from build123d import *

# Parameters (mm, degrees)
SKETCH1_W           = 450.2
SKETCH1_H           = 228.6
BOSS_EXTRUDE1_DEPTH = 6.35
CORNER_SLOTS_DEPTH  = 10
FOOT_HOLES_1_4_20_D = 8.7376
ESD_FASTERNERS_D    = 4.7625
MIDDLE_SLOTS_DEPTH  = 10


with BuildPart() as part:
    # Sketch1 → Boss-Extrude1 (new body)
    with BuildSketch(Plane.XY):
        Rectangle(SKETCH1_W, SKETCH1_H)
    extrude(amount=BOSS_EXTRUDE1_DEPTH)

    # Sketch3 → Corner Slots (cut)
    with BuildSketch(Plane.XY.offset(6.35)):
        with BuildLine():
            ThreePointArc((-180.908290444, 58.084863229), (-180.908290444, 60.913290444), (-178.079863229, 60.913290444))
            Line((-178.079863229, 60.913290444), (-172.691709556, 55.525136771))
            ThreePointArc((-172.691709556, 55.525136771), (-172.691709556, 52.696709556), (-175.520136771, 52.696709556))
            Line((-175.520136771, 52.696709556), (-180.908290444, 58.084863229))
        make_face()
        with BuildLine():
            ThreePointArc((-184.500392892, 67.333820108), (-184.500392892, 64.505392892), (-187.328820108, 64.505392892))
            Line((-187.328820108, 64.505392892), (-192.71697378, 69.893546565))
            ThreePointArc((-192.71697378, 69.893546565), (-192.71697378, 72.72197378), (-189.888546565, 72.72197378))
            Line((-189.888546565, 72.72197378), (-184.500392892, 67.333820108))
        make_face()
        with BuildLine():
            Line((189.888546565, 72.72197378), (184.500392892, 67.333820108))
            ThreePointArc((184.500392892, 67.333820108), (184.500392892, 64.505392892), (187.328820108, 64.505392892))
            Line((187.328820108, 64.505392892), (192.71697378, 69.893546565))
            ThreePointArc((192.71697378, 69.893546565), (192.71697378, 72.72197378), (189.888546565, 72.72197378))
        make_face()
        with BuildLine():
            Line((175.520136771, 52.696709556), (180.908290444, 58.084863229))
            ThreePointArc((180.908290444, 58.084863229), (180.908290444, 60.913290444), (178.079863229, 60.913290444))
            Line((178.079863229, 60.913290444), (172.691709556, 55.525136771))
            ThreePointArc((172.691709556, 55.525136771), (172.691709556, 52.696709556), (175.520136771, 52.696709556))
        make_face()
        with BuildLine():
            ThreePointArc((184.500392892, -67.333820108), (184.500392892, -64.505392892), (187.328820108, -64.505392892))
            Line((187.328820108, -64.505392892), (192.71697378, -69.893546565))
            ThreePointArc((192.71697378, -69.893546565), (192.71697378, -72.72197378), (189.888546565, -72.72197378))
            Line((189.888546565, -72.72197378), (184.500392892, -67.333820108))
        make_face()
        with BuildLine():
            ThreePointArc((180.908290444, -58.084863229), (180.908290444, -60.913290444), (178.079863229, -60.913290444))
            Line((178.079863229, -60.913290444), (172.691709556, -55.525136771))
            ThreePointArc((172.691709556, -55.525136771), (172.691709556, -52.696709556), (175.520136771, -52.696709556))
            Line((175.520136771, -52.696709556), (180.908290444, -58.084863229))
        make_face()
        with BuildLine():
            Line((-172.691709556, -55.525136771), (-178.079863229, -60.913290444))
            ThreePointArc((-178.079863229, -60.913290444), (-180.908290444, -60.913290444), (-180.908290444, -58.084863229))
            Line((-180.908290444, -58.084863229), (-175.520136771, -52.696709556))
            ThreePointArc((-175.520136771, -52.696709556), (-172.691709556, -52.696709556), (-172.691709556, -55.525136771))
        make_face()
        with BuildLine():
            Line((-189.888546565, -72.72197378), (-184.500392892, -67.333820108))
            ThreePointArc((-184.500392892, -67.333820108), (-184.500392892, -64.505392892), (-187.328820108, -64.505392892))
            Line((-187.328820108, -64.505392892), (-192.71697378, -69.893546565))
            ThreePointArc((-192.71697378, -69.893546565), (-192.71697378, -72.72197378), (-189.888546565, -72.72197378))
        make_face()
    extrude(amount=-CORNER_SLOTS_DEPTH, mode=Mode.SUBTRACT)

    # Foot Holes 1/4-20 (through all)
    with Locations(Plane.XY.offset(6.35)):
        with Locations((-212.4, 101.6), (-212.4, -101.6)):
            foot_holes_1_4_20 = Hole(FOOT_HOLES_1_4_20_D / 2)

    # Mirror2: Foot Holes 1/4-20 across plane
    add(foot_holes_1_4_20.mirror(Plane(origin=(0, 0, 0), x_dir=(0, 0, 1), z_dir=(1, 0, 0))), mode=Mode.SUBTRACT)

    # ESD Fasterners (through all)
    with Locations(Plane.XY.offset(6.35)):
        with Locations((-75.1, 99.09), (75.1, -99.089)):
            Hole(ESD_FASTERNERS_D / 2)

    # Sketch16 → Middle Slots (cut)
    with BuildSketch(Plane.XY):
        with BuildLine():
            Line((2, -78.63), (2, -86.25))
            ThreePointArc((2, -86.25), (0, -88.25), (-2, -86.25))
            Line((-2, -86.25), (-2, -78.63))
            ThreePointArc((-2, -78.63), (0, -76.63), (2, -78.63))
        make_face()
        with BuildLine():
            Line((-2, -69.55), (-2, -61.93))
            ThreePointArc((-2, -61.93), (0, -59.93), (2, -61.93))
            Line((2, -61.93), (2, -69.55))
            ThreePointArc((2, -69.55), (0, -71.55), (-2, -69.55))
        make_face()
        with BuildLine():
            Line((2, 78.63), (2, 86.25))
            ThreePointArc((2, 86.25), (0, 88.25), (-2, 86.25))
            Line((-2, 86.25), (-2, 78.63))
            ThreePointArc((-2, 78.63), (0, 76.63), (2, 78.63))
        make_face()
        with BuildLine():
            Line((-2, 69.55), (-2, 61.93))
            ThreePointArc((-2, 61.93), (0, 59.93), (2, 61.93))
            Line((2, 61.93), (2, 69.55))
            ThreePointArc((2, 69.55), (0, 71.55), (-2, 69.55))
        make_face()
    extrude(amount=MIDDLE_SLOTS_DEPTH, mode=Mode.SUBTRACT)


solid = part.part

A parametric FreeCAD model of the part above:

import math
import FreeCAD as App
import Part
import Sketcher
Q = App.Units.Quantity

doc = App.newDocument("Part")
params = doc.addObject("Spreadsheet::Sheet", "Params")
for row, (alias, value) in enumerate([
    ("sketch1_height", "9 in"),
    ("pad1_length", "0.25 in"),
    ("sketch2_length", "0.3 in"),
    ("pocket1_length", "10 mm"),
    ("sketch3_diameter", "0.344 in"),
    ("hole_diameter", "0.344 in"),
    ("sketch4_diameter", "0.1875 in"),
    ("hole2_diameter", "0.1875 in"),
    ("sketch5_height", "0.3 in"),
    ("pocket2_length", "10 mm"),
], start=1):
    params.set(f"A{row}", alias)
    params.set(f"B{row}", "=" + value)
    params.setAlias(f"B{row}", alias)

body = doc.addObject("PartDesign::Body", "Body")

# Sketch on XY plane
sketch1 = body.newObject("Sketcher::SketchObject", "Sketch")
sketch1.AttachmentSupport = (doc.getObject("XY_Plane"), [""])
sketch1.MapMode = "FlatFace"
sketch1.addGeometry(Part.LineSegment(App.Vector(-225, 114, 0), App.Vector(-225, -114, 0)), False)
sketch1.addGeometry(Part.LineSegment(App.Vector(-225, -114, 0), App.Vector(225, -114, 0)), False)
sketch1.addGeometry(Part.LineSegment(App.Vector(225, -114, 0), App.Vector(225, 114, 0)), False)
sketch1.addGeometry(Part.LineSegment(App.Vector(225, 114, 0), App.Vector(-225, 114, 0)), False)
sketch1.addConstraint(Sketcher.Constraint("Coincident", 0, 2, 1, 1))
sketch1.addConstraint(Sketcher.Constraint("Coincident", 1, 2, 2, 1))
sketch1.addConstraint(Sketcher.Constraint("Coincident", 2, 2, 3, 1))
sketch1.addConstraint(Sketcher.Constraint("Coincident", 3, 2, 0, 1))
sketch1.addConstraint(Sketcher.Constraint("Vertical", 0))
sketch1.addConstraint(Sketcher.Constraint("Horizontal", 1))
sketch1.addConstraint(Sketcher.Constraint("Vertical", 2))
sketch1.addConstraint(Sketcher.Constraint("Horizontal", 3))
sketch1.addConstraint(Sketcher.Constraint("Symmetric", 0, 2, 2, 2, -1, 1))
sketch1.addConstraint(Sketcher.Constraint("DistanceY", 0, 2, 0, 1, Q("9 in")))
sketch1.addConstraint(Sketcher.Constraint("DistanceX", 1, 1, 1, 2, 450.2))
sketch1.setExpression("Constraints[9]", "Params.sketch1_height")
pad1 = body.newObject("PartDesign::Pad", "Pad")
pad1.Profile = sketch1
pad1.setExpression("Length", "Params.pad1_length")

# Sketch on XY plane
sketch2 = body.newObject("Sketcher::SketchObject", "Sketch001")
sketch2.AttachmentSupport = (doc.getObject("XY_Plane"), [""])
sketch2.MapMode = "FlatFace"
sketch2.AttachmentOffset = App.Placement(App.Vector(0, 0, 0.25 * 25.4), App.Rotation())
sketch2.addGeometry(Part.ArcOfCircle(Part.Circle(App.Vector(-179.5, 59.5, 0), App.Vector(0, 0, 1), 2), math.radians(45), math.radians(225)), False)
sketch2.addGeometry(Part.LineSegment(App.Vector(-180.9, 58.1, 0), App.Vector(-175.5, 52.7, 0)), False)
sketch2.addGeometry(Part.ArcOfCircle(Part.Circle(App.Vector(-174.1, 54.1, 0), App.Vector(0, 0, 1), 2), math.radians(-135), math.radians(45)), False)
sketch2.addGeometry(Part.LineSegment(App.Vector(-172.7, 55.5, 0), App.Vector(-178.1, 60.9, 0)), False)
sketch2.addGeometry(Part.ArcOfCircle(Part.Circle(App.Vector(-185.9, 65.9, 0), App.Vector(0, 0, 1), 2), math.radians(-135), math.radians(45)), False)
sketch2.addGeometry(Part.LineSegment(App.Vector(-184.5, 67.3, 0), App.Vector(-189.9, 72.7, 0)), False)
sketch2.addGeometry(Part.ArcOfCircle(Part.Circle(App.Vector(-191.3, 71.3, 0), App.Vector(0, 0, 1), 2), math.radians(45), math.radians(225)), False)
sketch2.addGeometry(Part.LineSegment(App.Vector(-192.7, 69.9, 0), App.Vector(-187.3, 64.5, 0)), False)
sketch2.addGeometry(Part.LineSegment(App.Vector(189.9, 72.7, 0), App.Vector(184.5, 67.3, 0)), False)
sketch2.addGeometry(Part.ArcOfCircle(Part.Circle(App.Vector(185.9, 65.9, 0), App.Vector(0, 0, 1), 2), math.radians(135), math.radians(315)), False)
sketch2.addGeometry(Part.LineSegment(App.Vector(187.3, 64.5, 0), App.Vector(192.7, 69.9, 0)), False)
sketch2.addGeometry(Part.ArcOfCircle(Part.Circle(App.Vector(191.3, 71.3, 0), App.Vector(0, 0, 1), 2), math.radians(-45), math.radians(135)), False)
sketch2.addGeometry(Part.LineSegment(App.Vector(175.5, 52.7, 0), App.Vector(180.9, 58.1, 0)), False)
sketch2.addGeometry(Part.ArcOfCircle(Part.Circle(App.Vector(179.5, 59.5, 0), App.Vector(0, 0, 1), 2), math.radians(-45), math.radians(135)), False)
sketch2.addGeometry(Part.LineSegment(App.Vector(178.1, 60.9, 0), App.Vector(172.7, 55.5, 0)), False)
sketch2.addGeometry(Part.ArcOfCircle(Part.Circle(App.Vector(174.1, 54.1, 0), App.Vector(0, 0, 1), 2), math.radians(135), math.radians(315)), False)
sketch2.addGeometry(Part.ArcOfCircle(Part.Circle(App.Vector(185.9, -65.9, 0), App.Vector(0, 0, 1), 2), math.radians(45), math.radians(225)), False)
sketch2.addGeometry(Part.LineSegment(App.Vector(184.5, -67.3, 0), App.Vector(189.9, -72.7, 0)), False)
sketch2.addGeometry(Part.ArcOfCircle(Part.Circle(App.Vector(191.3, -71.3, 0), App.Vector(0, 0, 1), 2), math.radians(-135), math.radians(45)), False)
sketch2.addGeometry(Part.LineSegment(App.Vector(192.7, -69.9, 0), App.Vector(187.3, -64.5, 0)), False)
sketch2.addGeometry(Part.ArcOfCircle(Part.Circle(App.Vector(179.5, -59.5, 0), App.Vector(0, 0, 1), 2), math.radians(-135), math.radians(45)), False)
sketch2.addGeometry(Part.LineSegment(App.Vector(180.9, -58.1, 0), App.Vector(175.5, -52.7, 0)), False)
sketch2.addGeometry(Part.ArcOfCircle(Part.Circle(App.Vector(174.1, -54.1, 0), App.Vector(0, 0, 1), 2), math.radians(45), math.radians(225)), False)
sketch2.addGeometry(Part.LineSegment(App.Vector(172.7, -55.5, 0), App.Vector(178.1, -60.9, 0)), False)
sketch2.addGeometry(Part.LineSegment(App.Vector(-178.1, -60.9, 0), App.Vector(-172.7, -55.5, 0)), False)
sketch2.addGeometry(Part.ArcOfCircle(Part.Circle(App.Vector(-174.1, -54.1, 0), App.Vector(0, 0, 1), 2), math.radians(-45), math.radians(135)), False)
sketch2.addGeometry(Part.LineSegment(App.Vector(-175.5, -52.7, 0), App.Vector(-180.9, -58.1, 0)), False)
sketch2.addGeometry(Part.ArcOfCircle(Part.Circle(App.Vector(-179.5, -59.5, 0), App.Vector(0, 0, 1), 2), math.radians(135), math.radians(315)), False)
sketch2.addGeometry(Part.LineSegment(App.Vector(-189.9, -72.7, 0), App.Vector(-184.5, -67.3, 0)), False)
sketch2.addGeometry(Part.ArcOfCircle(Part.Circle(App.Vector(-185.9, -65.9, 0), App.Vector(0, 0, 1), 2), math.radians(-45), math.radians(135)), False)
sketch2.addGeometry(Part.LineSegment(App.Vector(-187.3, -64.5, 0), App.Vector(-192.7, -69.9, 0)), False)
sketch2.addGeometry(Part.ArcOfCircle(Part.Circle(App.Vector(-191.3, -71.3, 0), App.Vector(0, 0, 1), 2), math.radians(135), math.radians(315)), False)
sketch2.addConstraint(Sketcher.Constraint("Tangent", 0, 2, 1, 1))
sketch2.addConstraint(Sketcher.Constraint("Tangent", 1, 2, 2, 1))
sketch2.addConstraint(Sketcher.Constraint("Tangent", 2, 2, 3, 1))
sketch2.addConstraint(Sketcher.Constraint("Tangent", 3, 2, 0, 1))
sketch2.addConstraint(Sketcher.Constraint("Tangent", 4, 2, 5, 1))
sketch2.addConstraint(Sketcher.Constraint("Tangent", 5, 2, 6, 1))
sketch2.addConstraint(Sketcher.Constraint("Tangent", 6, 2, 7, 1))
sketch2.addConstraint(Sketcher.Constraint("Tangent", 7, 2, 4, 1))
sketch2.addConstraint(Sketcher.Constraint("Tangent", 8, 2, 9, 1))
sketch2.addConstraint(Sketcher.Constraint("Tangent", 9, 2, 10, 1))
sketch2.addConstraint(Sketcher.Constraint("Tangent", 10, 2, 11, 1))
sketch2.addConstraint(Sketcher.Constraint("Tangent", 11, 2, 8, 1))
sketch2.addConstraint(Sketcher.Constraint("Tangent", 12, 2, 13, 1))
sketch2.addConstraint(Sketcher.Constraint("Tangent", 13, 2, 14, 1))
sketch2.addConstraint(Sketcher.Constraint("Tangent", 14, 2, 15, 1))
sketch2.addConstraint(Sketcher.Constraint("Tangent", 15, 2, 12, 1))
sketch2.addConstraint(Sketcher.Constraint("Tangent", 16, 2, 17, 1))
sketch2.addConstraint(Sketcher.Constraint("Tangent", 17, 2, 18, 1))
sketch2.addConstraint(Sketcher.Constraint("Tangent", 18, 2, 19, 1))
sketch2.addConstraint(Sketcher.Constraint("Tangent", 19, 2, 16, 1))
sketch2.addConstraint(Sketcher.Constraint("Tangent", 20, 2, 21, 1))
sketch2.addConstraint(Sketcher.Constraint("Tangent", 21, 2, 22, 1))
sketch2.addConstraint(Sketcher.Constraint("Tangent", 22, 2, 23, 1))
sketch2.addConstraint(Sketcher.Constraint("Tangent", 23, 2, 20, 1))
sketch2.addConstraint(Sketcher.Constraint("Tangent", 24, 2, 25, 1))
sketch2.addConstraint(Sketcher.Constraint("Tangent", 25, 2, 26, 1))
sketch2.addConstraint(Sketcher.Constraint("Tangent", 26, 2, 27, 1))
sketch2.addConstraint(Sketcher.Constraint("Tangent", 27, 2, 24, 1))
sketch2.addConstraint(Sketcher.Constraint("Tangent", 28, 2, 29, 1))
sketch2.addConstraint(Sketcher.Constraint("Tangent", 29, 2, 30, 1))
sketch2.addConstraint(Sketcher.Constraint("Tangent", 30, 2, 31, 1))
sketch2.addConstraint(Sketcher.Constraint("Tangent", 31, 2, 28, 1))
sketch2.addConstraint(Sketcher.Constraint("Equal", 0, 2))
sketch2.addConstraint(Sketcher.Constraint("Equal", 2, 4))
sketch2.addConstraint(Sketcher.Constraint("Equal", 4, 6))
sketch2.addConstraint(Sketcher.Constraint("Equal", 6, 9))
sketch2.addConstraint(Sketcher.Constraint("Equal", 9, 11))
sketch2.addConstraint(Sketcher.Constraint("Equal", 11, 13))
sketch2.addConstraint(Sketcher.Constraint("Equal", 13, 15))
sketch2.addConstraint(Sketcher.Constraint("Equal", 15, 16))
sketch2.addConstraint(Sketcher.Constraint("Equal", 16, 18))
sketch2.addConstraint(Sketcher.Constraint("Equal", 18, 20))
sketch2.addConstraint(Sketcher.Constraint("Equal", 20, 22))
sketch2.addConstraint(Sketcher.Constraint("Equal", 22, 25))
sketch2.addConstraint(Sketcher.Constraint("Equal", 25, 27))
sketch2.addConstraint(Sketcher.Constraint("Equal", 27, 29))
sketch2.addConstraint(Sketcher.Constraint("Equal", 29, 31))
sketch2.addConstraint(Sketcher.Constraint("Symmetric", 4, 3, 16, 3, -1, 1))
sketch2.addConstraint(Sketcher.Constraint("Symmetric", 6, 3, 18, 3, -1, 1))
sketch2.addConstraint(Sketcher.Constraint("Symmetric", 0, 3, 20, 3, -1, 1))
sketch2.addConstraint(Sketcher.Constraint("Symmetric", 2, 3, 22, 3, -1, 1))
sketch2.addConstraint(Sketcher.Constraint("Symmetric", 15, 3, 25, 3, -1, 1))
sketch2.addConstraint(Sketcher.Constraint("Symmetric", 13, 3, 27, 3, -1, 1))
sketch2.addConstraint(Sketcher.Constraint("Symmetric", 9, 3, 29, 3, -1, 1))
sketch2.addConstraint(Sketcher.Constraint("Symmetric", 11, 3, 31, 3, -1, 1))
sketch2.addConstraint(Sketcher.Constraint("Symmetric", 4, 3, 9, 3, -2))
sketch2.addConstraint(Sketcher.Constraint("Symmetric", 6, 3, 11, 3, -2))
sketch2.addConstraint(Sketcher.Constraint("Symmetric", 0, 3, 13, 3, -2))
sketch2.addConstraint(Sketcher.Constraint("Symmetric", 2, 3, 15, 3, -2))
sketch2.addConstraint(Sketcher.Constraint("Parallel", 3, 5))
sketch2.addConstraint(Sketcher.Constraint("Perpendicular", 7, 8))
sketch2.addConstraint(Sketcher.Constraint("Equal", 3, 5))
sketch2.addConstraint(Sketcher.Constraint("Distance", 1, Q("0.3 in")))
sketch2.addConstraint(Sketcher.Constraint("Radius", 0, 2.0))
sketch2.addConstraint(Sketcher.Constraint("DistanceX", 2, 3, 13, 3, 353.6))
sketch2.addConstraint(Sketcher.Constraint("DistanceY", 20, 3, 15, 3, 113.61))
sketch2.addConstraint(Sketcher.Constraint("DistanceX", 6, 3, -1, 1, 191.30276))
sketch2.addConstraint(Sketcher.Constraint("DistanceY", -1, 1, 6, 3, 71.30776))
sketch2.setExpression("Constraints[62]", "Params.sketch2_length")
pocket1 = body.newObject("PartDesign::Pocket", "Pocket")
pocket1.Profile = sketch2
pocket1.setExpression("Length", "Params.pocket1_length")

# Sketch on XY plane
sketch3 = body.newObject("Sketcher::SketchObject", "Sketch002")
sketch3.AttachmentSupport = (doc.getObject("XY_Plane"), [""])
sketch3.MapMode = "FlatFace"
sketch3.AttachmentOffset = App.Placement(App.Vector(0, 0, 0.25 * 25.4), App.Rotation())
sketch3.addGeometry(Part.Circle(App.Vector(-212.4, 101.6, 0), App.Vector(0, 0, 1), 4.4), False)
sketch3.addGeometry(Part.Circle(App.Vector(-212.4, -101.6, 0), App.Vector(0, 0, 1), 4.4), False)
sketch3.addConstraint(Sketcher.Constraint("Equal", 0, 1))
sketch3.addConstraint(Sketcher.Constraint("Symmetric", 0, 3, 1, 3, -1))
sketch3.addConstraint(Sketcher.Constraint("Diameter", 0, Q("0.344 in")))
sketch3.addConstraint(Sketcher.Constraint("DistanceY", -1, 1, 0, 3, Q("4 in")))
sketch3.addConstraint(Sketcher.Constraint("DistanceX", 0, 3, -1, 1, 212.4))
sketch3.setExpression("Constraints[2]", "Params.sketch3_diameter")
doc.recompute()
hole = body.newObject("PartDesign::Hole", "Hole")
hole.Profile = sketch3
hole.ThreadType = "None"
hole.setExpression("Diameter", "Params.hole_diameter")
hole.DepthType = "ThroughAll"
doc.recompute()

mirrored = body.newObject("PartDesign::Mirrored", "Mirrored")
mirrored.Originals = [hole]
mirrored.MirrorPlane = (doc.getObject("YZ_Plane"), [""])
body.Tip = mirrored

# Sketch on XY plane
sketch4 = body.newObject("Sketcher::SketchObject", "Sketch003")
sketch4.AttachmentSupport = (doc.getObject("XY_Plane"), [""])
sketch4.MapMode = "FlatFace"
sketch4.AttachmentOffset = App.Placement(App.Vector(0, 0, 0.25 * 25.4), App.Rotation())
sketch4.addGeometry(Part.Circle(App.Vector(-75.1, 99.1, 0), App.Vector(0, 0, 1), 2.4), False)
sketch4.addGeometry(Part.Circle(App.Vector(75.1, -99.1, 0), App.Vector(0, 0, 1), 2.4), False)
sketch4.addConstraint(Sketcher.Constraint("Equal", 0, 1))
sketch4.addConstraint(Sketcher.Constraint("Diameter", 0, Q("0.1875 in")))
sketch4.addConstraint(Sketcher.Constraint("DistanceX", 0, 3, -1, 1, 75.1))
sketch4.addConstraint(Sketcher.Constraint("DistanceY", -1, 1, 0, 3, 99.09))
sketch4.addConstraint(Sketcher.Constraint("DistanceX", -1, 1, 1, 3, 75.1))
sketch4.addConstraint(Sketcher.Constraint("DistanceY", 1, 3, -1, 1, 99.089))
sketch4.setExpression("Constraints[1]", "Params.sketch4_diameter")
doc.recompute()
hole2 = body.newObject("PartDesign::Hole", "Hole001")
hole2.Profile = sketch4
hole2.ThreadType = "None"
hole2.setExpression("Diameter", "Params.hole2_diameter")
hole2.DepthType = "ThroughAll"

# Sketch on XY plane
sketch5 = body.newObject("Sketcher::SketchObject", "Sketch004")
sketch5.AttachmentSupport = (doc.getObject("XY_Plane"), [""])
sketch5.MapMode = "FlatFace"
sketch5.addGeometry(Part.LineSegment(App.Vector(2, -86.2, 0), App.Vector(2, -78.6, 0)), False)
sketch5.addGeometry(Part.ArcOfCircle(Part.Circle(App.Vector(0, -78.6, 0), App.Vector(0, 0, 1), 2), math.radians(0), math.radians(180)), False)
sketch5.addGeometry(Part.LineSegment(App.Vector(-2, -78.6, 0), App.Vector(-2, -86.2, 0)), False)
sketch5.addGeometry(Part.ArcOfCircle(Part.Circle(App.Vector(0, -86.2, 0), App.Vector(0, 0, 1), 2), math.radians(180), math.radians(360)), False)
sketch5.addGeometry(Part.LineSegment(App.Vector(-2, -61.9, 0), App.Vector(-2, -69.5, 0)), False)
sketch5.addGeometry(Part.ArcOfCircle(Part.Circle(App.Vector(0, -69.5, 0), App.Vector(0, 0, 1), 2), math.radians(180), math.radians(360)), False)
sketch5.addGeometry(Part.LineSegment(App.Vector(2, -69.5, 0), App.Vector(2, -61.9, 0)), False)
sketch5.addGeometry(Part.ArcOfCircle(Part.Circle(App.Vector(0, -61.9, 0), App.Vector(0, 0, 1), 2), math.radians(0), math.radians(180)), False)
sketch5.addGeometry(Part.LineSegment(App.Vector(2, 78.6, 0), App.Vector(2, 86.2, 0)), False)
sketch5.addGeometry(Part.ArcOfCircle(Part.Circle(App.Vector(0, 86.2, 0), App.Vector(0, 0, 1), 2), math.radians(0), math.radians(180)), False)
sketch5.addGeometry(Part.LineSegment(App.Vector(-2, 86.2, 0), App.Vector(-2, 78.6, 0)), False)
sketch5.addGeometry(Part.ArcOfCircle(Part.Circle(App.Vector(0, 78.6, 0), App.Vector(0, 0, 1), 2), math.radians(180), math.radians(360)), False)
sketch5.addGeometry(Part.LineSegment(App.Vector(-2, 69.5, 0), App.Vector(-2, 61.9, 0)), False)
sketch5.addGeometry(Part.ArcOfCircle(Part.Circle(App.Vector(0, 61.9, 0), App.Vector(0, 0, 1), 2), math.radians(180), math.radians(360)), False)
sketch5.addGeometry(Part.LineSegment(App.Vector(2, 61.9, 0), App.Vector(2, 69.5, 0)), False)
sketch5.addGeometry(Part.ArcOfCircle(Part.Circle(App.Vector(0, 69.5, 0), App.Vector(0, 0, 1), 2), math.radians(0), math.radians(180)), False)
sketch5.addConstraint(Sketcher.Constraint("Tangent", 0, 2, 1, 1))
sketch5.addConstraint(Sketcher.Constraint("Tangent", 1, 2, 2, 1))
sketch5.addConstraint(Sketcher.Constraint("Tangent", 2, 2, 3, 1))
sketch5.addConstraint(Sketcher.Constraint("Tangent", 3, 2, 0, 1))
sketch5.addConstraint(Sketcher.Constraint("Tangent", 4, 2, 5, 1))
sketch5.addConstraint(Sketcher.Constraint("Tangent", 5, 2, 6, 1))
sketch5.addConstraint(Sketcher.Constraint("Tangent", 6, 2, 7, 1))
sketch5.addConstraint(Sketcher.Constraint("Tangent", 7, 2, 4, 1))
sketch5.addConstraint(Sketcher.Constraint("Tangent", 8, 2, 9, 1))
sketch5.addConstraint(Sketcher.Constraint("Tangent", 9, 2, 10, 1))
sketch5.addConstraint(Sketcher.Constraint("Tangent", 10, 2, 11, 1))
sketch5.addConstraint(Sketcher.Constraint("Tangent", 11, 2, 8, 1))
sketch5.addConstraint(Sketcher.Constraint("Tangent", 12, 2, 13, 1))
sketch5.addConstraint(Sketcher.Constraint("Tangent", 13, 2, 14, 1))
sketch5.addConstraint(Sketcher.Constraint("Tangent", 14, 2, 15, 1))
sketch5.addConstraint(Sketcher.Constraint("Tangent", 15, 2, 12, 1))
sketch5.addConstraint(Sketcher.Constraint("Vertical", 0))
sketch5.addConstraint(Sketcher.Constraint("Vertical", 2))
sketch5.addConstraint(Sketcher.Constraint("Vertical", 4))
sketch5.addConstraint(Sketcher.Constraint("Vertical", 6))
sketch5.addConstraint(Sketcher.Constraint("Vertical", 8))
sketch5.addConstraint(Sketcher.Constraint("Vertical", 10))
sketch5.addConstraint(Sketcher.Constraint("Vertical", 12))
sketch5.addConstraint(Sketcher.Constraint("Vertical", 14))
sketch5.addConstraint(Sketcher.Constraint("Equal", 3, 5))
sketch5.addConstraint(Sketcher.Constraint("Equal", 7, 9))
sketch5.addConstraint(Sketcher.Constraint("Equal", 11, 13))
sketch5.addConstraint(Sketcher.Constraint("Symmetric", 3, 3, 9, 3, -1, 1))
sketch5.addConstraint(Sketcher.Constraint("Symmetric", 7, 3, 13, 3, -1, 1))
sketch5.addConstraint(Sketcher.Constraint("Symmetric", 1, 3, 11, 3, -1))
sketch5.addConstraint(Sketcher.Constraint("Symmetric", 5, 3, 15, 3, -1))
sketch5.addConstraint(Sketcher.Constraint("Equal", 2, 4))
sketch5.addConstraint(Sketcher.Constraint("DistanceY", 0, 1, 0, 2, Q("0.3 in")))
sketch5.addConstraint(Sketcher.Constraint("Radius", 1, 2.0))
sketch5.addConstraint(Sketcher.Constraint("DistanceY", 1, 3, -1, 1, 78.63))
sketch5.addConstraint(Sketcher.Constraint("DistanceY", 5, 3, -1, 1, 69.55))
sketch5.setExpression("Constraints[32]", "Params.sketch5_height")
pocket2 = body.newObject("PartDesign::Pocket", "Pocket001")
pocket2.Profile = sketch5
pocket2.setExpression("Length", "Params.pocket2_length")
pocket2.Reversed = True

doc.recompute()
